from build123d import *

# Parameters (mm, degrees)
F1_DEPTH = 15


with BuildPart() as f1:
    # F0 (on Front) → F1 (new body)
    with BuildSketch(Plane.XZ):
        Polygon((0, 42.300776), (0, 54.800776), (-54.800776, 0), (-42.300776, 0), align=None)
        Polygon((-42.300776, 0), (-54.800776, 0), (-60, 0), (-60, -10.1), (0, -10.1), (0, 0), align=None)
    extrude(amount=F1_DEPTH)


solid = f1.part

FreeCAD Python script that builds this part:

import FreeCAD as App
import Part
import Sketcher

V = App.Vector
Q = App.Units.Quantity

doc = App.newDocument("Part")
body = doc.addObject("PartDesign::Body", "Body")

sketch1 = body.newObject("Sketcher::SketchObject", "Sketch")
sketch1.AttachmentSupport = (doc.getObject("XZ_Plane"), [""])
sketch1.MapMode = "FlatFace"
sketch1.addGeometry(Part.LineSegment(V(0, 42, 0), V(0, 55, 0)), False)
sketch1.addGeometry(Part.LineSegment(V(0, 55, 0), V(-55, 0, 0)), False)
sketch1.addGeometry(Part.LineSegment(V(-55, 0, 0), V(-60, 0, 0)), False)
sketch1.addGeometry(Part.LineSegment(V(-60, 0, 0), V(-60, -10, 0)), False)
sketch1.addGeometry(Part.LineSegment(V(-60, -10, 0), V(0, -10, 0)), False)
sketch1.addGeometry(Part.LineSegment(V(0, -10, 0), V(0, 0, 0)), False)
sketch1.addGeometry(Part.LineSegment(V(0, 0, 0), V(-42, 0, 0)), False)
sketch1.addGeometry(Part.LineSegment(V(-42, 0, 0), V(0, 42, 0)), False)
sketch1.addConstraint(Sketcher.Constraint("Coincident", 0, 2, 1, 1))
sketch1.addConstraint(Sketcher.Constraint("Coincident", 1, 2, 2, 1))
sketch1.addConstraint(Sketcher.Constraint("Coincident", 2, 2, 3, 1))
sketch1.addConstraint(Sketcher.Constraint("Coincident", 3, 2, 4, 1))
sketch1.addConstraint(Sketcher.Constraint("Coincident", 4, 2, 5, 1))
sketch1.addConstraint(Sketcher.Constraint("Coincident", 5, 2, 6, 1))
sketch1.addConstraint(Sketcher.Constraint("Coincident", 6, 2, 7, 1))
sketch1.addConstraint(Sketcher.Constraint("Coincident", 7, 2, 0, 1))
sketch1.addConstraint(Sketcher.Constraint("Vertical", 0))
sketch1.addConstraint(Sketcher.Constraint("Horizontal", 2))
sketch1.addConstraint(Sketcher.Constraint("Vertical", 3))
sketch1.addConstraint(Sketcher.Constraint("Horizontal", 4))
sketch1.addConstraint(Sketcher.Constraint("Vertical", 5))
sketch1.addConstraint(Sketcher.Constraint("Horizontal", 6))
sketch1.addConstraint(Sketcher.Constraint("Coincident", 5, 2, -1, 1))
sketch1.addConstraint(Sketcher.Constraint("PointOnObject", 0, 2, -2))
sketch1.addConstraint(Sketcher.Constraint("PointOnObject", 1, 2, -1))
sketch1.addConstraint(Sketcher.Constraint("Parallel", 1, 7))
sketch1.addConstraint(Sketcher.Constraint("DistanceX", 4, 1, 4, 2, Q("60 mm")))
sketch1.addConstraint(Sketcher.Constraint("Angle", 1, Q("-135 deg")))
sketch1.addConstraint(Sketcher.Constraint("DistanceY", 0, 1, 0, 2, Q("12.5 mm")))
sketch1.addConstraint(Sketcher.Constraint("DistanceY", 3, 2, 3, 1, Q("10.1 mm")))
sketch1.addConstraint(Sketcher.Constraint("Distance", 1, Q("77.500001 mm")))
pad1 = body.newObject("PartDesign::Pad", "Pad")
pad1.Profile = sketch1
pad1.Length = 15

doc.recompute()
